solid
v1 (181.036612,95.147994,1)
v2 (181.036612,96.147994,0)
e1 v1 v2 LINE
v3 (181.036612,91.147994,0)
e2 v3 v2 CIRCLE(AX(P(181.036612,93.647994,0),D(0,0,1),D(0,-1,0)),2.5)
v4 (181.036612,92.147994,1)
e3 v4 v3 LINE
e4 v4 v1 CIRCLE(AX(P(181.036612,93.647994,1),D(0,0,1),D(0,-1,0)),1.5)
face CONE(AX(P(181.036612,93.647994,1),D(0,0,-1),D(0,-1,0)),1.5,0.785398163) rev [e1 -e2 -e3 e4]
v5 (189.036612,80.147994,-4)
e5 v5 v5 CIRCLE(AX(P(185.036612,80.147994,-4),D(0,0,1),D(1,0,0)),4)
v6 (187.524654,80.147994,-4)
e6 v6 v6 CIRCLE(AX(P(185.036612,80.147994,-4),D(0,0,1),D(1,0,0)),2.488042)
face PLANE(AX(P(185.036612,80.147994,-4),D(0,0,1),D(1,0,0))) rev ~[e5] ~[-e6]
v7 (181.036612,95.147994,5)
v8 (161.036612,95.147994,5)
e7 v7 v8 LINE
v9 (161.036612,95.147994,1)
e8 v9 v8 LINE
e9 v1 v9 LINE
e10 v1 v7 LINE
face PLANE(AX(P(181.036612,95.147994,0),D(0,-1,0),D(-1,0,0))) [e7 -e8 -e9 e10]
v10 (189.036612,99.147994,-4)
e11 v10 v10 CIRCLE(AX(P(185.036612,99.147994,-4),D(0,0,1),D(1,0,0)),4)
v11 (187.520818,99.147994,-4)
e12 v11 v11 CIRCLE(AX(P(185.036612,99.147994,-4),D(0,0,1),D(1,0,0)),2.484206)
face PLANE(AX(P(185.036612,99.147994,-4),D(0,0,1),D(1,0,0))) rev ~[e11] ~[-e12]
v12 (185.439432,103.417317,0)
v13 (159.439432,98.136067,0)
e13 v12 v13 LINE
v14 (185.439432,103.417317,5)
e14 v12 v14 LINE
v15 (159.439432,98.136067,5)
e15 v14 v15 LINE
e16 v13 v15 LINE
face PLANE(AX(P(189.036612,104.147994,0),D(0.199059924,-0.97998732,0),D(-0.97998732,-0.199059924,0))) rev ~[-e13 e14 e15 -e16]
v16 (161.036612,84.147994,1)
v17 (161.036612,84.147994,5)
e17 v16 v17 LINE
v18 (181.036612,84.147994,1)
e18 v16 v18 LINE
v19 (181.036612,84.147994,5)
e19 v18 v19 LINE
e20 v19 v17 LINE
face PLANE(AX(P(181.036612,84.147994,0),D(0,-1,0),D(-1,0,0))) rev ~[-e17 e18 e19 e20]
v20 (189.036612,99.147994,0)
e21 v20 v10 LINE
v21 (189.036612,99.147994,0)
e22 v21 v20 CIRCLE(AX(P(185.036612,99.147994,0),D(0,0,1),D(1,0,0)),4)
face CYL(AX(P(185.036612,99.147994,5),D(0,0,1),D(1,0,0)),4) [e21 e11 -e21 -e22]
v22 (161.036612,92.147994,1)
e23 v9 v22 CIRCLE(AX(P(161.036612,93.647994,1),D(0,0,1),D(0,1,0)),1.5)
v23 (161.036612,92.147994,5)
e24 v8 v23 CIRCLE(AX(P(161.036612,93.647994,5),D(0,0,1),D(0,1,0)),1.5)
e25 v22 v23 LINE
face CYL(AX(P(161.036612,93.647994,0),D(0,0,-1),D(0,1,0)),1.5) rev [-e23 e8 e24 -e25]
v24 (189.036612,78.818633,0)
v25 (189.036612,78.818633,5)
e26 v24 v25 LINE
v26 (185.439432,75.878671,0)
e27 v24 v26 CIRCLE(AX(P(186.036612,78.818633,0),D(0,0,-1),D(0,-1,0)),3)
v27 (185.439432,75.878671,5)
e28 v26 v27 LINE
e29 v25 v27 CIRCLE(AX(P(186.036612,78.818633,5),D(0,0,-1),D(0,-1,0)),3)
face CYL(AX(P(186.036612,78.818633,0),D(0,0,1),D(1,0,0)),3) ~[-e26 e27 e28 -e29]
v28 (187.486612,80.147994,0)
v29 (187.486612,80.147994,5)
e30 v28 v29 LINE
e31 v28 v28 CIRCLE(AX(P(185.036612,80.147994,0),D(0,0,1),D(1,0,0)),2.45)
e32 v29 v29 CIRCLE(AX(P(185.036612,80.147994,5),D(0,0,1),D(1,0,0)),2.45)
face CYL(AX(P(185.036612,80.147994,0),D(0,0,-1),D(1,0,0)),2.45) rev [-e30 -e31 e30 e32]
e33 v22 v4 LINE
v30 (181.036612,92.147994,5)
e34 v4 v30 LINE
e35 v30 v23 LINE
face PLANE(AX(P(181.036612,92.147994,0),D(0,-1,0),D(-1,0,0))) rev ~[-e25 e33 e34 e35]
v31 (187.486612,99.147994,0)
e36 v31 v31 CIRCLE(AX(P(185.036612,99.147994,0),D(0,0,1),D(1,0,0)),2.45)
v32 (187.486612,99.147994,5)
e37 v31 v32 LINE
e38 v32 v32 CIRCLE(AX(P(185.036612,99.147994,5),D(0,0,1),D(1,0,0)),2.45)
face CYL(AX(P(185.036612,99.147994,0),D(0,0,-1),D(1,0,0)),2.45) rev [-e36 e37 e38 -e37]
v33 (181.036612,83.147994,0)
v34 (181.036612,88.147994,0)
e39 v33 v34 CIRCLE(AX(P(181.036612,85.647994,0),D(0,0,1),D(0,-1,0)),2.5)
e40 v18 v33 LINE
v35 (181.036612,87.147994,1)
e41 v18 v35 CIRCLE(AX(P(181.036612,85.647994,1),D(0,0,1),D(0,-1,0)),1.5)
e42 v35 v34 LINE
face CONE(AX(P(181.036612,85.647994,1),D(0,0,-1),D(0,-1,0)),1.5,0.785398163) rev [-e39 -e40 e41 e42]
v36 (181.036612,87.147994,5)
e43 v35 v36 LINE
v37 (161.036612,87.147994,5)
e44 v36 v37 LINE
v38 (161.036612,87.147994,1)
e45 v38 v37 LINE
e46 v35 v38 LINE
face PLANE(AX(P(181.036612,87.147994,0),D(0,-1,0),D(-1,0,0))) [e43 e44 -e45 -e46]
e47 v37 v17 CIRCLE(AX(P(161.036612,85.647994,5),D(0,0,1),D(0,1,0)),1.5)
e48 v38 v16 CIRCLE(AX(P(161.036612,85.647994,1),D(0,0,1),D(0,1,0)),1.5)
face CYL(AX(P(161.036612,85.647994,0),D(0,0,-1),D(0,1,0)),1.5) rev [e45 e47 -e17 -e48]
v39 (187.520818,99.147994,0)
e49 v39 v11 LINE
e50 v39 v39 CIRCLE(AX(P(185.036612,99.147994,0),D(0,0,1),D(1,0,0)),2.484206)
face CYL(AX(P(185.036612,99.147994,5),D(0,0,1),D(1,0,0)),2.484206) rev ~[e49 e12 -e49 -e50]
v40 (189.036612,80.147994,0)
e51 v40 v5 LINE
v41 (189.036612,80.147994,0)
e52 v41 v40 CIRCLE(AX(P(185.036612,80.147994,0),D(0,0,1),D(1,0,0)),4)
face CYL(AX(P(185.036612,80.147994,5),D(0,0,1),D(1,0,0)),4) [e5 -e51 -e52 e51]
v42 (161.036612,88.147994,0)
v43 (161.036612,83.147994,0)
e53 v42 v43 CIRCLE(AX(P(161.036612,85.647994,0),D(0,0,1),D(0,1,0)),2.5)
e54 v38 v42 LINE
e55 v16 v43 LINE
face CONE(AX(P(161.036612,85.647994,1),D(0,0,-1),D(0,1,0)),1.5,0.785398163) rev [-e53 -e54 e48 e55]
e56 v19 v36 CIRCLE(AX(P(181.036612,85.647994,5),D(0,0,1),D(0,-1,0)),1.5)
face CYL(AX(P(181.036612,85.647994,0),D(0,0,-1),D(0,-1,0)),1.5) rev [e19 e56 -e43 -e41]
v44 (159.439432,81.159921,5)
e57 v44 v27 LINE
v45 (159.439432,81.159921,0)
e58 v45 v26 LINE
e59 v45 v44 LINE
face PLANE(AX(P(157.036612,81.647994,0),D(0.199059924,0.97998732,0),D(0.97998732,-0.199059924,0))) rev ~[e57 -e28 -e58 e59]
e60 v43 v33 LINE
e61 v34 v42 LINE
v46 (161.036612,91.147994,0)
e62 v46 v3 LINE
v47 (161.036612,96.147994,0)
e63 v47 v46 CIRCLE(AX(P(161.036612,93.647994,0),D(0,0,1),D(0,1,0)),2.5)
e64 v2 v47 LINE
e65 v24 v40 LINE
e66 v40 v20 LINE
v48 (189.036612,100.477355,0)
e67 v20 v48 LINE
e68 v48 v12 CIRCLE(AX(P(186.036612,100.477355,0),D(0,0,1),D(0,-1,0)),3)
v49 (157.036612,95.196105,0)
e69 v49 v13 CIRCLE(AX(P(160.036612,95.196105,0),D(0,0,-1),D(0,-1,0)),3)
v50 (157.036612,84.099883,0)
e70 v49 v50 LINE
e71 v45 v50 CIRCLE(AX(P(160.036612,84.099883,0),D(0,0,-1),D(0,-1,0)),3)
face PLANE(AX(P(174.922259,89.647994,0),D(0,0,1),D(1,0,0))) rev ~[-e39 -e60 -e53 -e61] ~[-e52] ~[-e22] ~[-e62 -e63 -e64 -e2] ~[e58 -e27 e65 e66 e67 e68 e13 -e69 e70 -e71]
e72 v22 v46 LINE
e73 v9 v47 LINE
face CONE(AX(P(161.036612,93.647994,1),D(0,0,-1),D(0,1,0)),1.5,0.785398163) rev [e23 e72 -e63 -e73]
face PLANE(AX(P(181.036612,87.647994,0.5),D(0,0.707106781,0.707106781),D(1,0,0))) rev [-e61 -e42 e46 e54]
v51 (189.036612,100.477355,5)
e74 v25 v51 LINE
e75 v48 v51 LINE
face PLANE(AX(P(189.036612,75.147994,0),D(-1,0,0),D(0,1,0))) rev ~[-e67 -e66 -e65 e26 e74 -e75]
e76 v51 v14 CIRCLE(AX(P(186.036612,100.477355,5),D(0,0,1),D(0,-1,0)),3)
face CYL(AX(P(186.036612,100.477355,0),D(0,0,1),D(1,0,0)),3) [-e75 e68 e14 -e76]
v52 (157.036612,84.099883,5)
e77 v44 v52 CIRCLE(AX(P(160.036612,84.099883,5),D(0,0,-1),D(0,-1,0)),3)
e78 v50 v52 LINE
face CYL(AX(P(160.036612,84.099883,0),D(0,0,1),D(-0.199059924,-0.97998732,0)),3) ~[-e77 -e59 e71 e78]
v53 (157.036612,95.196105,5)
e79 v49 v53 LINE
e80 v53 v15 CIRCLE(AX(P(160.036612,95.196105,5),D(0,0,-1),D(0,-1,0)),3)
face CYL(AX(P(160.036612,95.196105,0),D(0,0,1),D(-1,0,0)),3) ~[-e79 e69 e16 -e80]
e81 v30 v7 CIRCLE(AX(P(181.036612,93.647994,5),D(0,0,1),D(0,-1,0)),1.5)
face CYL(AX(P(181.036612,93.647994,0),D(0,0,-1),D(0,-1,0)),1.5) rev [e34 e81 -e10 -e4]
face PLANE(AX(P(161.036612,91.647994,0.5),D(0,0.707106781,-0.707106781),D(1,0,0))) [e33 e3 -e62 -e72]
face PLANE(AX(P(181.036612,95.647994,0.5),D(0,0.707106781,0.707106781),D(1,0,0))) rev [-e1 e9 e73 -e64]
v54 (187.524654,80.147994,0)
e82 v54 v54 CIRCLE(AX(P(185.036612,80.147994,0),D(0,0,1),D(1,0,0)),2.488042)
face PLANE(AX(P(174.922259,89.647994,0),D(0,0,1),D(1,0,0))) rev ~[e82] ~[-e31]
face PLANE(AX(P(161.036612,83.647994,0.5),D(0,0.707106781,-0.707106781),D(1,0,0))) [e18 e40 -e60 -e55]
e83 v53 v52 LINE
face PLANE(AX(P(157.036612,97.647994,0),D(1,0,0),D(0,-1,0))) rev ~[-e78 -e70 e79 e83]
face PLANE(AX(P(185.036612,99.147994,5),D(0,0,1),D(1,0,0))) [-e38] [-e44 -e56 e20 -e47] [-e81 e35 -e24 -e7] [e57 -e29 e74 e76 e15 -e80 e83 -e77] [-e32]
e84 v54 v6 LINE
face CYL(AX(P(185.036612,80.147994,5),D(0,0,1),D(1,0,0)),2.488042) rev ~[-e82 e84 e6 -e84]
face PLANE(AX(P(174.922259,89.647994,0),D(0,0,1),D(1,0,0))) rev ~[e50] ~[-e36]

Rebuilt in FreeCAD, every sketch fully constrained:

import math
import FreeCAD as App
import Part
import Sketcher
from FreeCAD import Vector


def edges_at(feature, points):
    """Names of the edges that pass closest to the given points."""
    edges = feature.Shape.Edges
    near = lambda p: min(range(len(edges)), key=lambda i: edges[i].distToShape(Part.Vertex(*p))[0])
    return sorted({f"Edge{near(p) + 1}" for p in points})


def add_polygon(sketch, points):
    """Adds a closed chain of lines whose ends are joined by coincident constraints."""
    first, n = sketch.GeometryCount, len(points)
    for a, b in zip(points, points[1:] + points[:1]):
        sketch.addGeometry(Part.LineSegment(App.Vector(*a, 0), App.Vector(*b, 0)), False)
    for i in range(n):
        sketch.addConstraint(Sketcher.Constraint("Coincident", first + i, 2, first + (i + 1) % n, 1))

doc = App.newDocument("Part")
body = doc.addObject("PartDesign::Body", "Body")

# Sketch on XY plane
sketch1 = body.newObject("Sketcher::SketchObject", "Sketch")
sketch1.AttachmentSupport = (doc.getObject("XY_Plane"), [""])
sketch1.MapMode = "FlatFace"
add_polygon(sketch1, [(189, 104.1), (157, 97.6), (157, 81.6), (189, 75.1)])  # lines 0-3
sketch1.addGeometry(Part.ArcOfCircle(Part.Circle(Vector(181, 85.6, 0), Vector(0, 0, 1), 1.5), math.radians(-90), math.radians(90)), False)  # 4
sketch1.addGeometry(Part.LineSegment(Vector(181, 84.1, 0), Vector(161, 84.1, 0)), False)  # 5
sketch1.addGeometry(Part.ArcOfCircle(Part.Circle(Vector(161, 85.6, 0), Vector(0, 0, 1), 1.5), math.radians(90), math.radians(270)), False)  # 6
sketch1.addGeometry(Part.LineSegment(Vector(161, 87.1, 0), Vector(181, 87.1, 0)), False)  # 7
sketch1.addGeometry(Part.Circle(Vector(185, 80.1, 0), Vector(0, 0, 1), 2.5), False)  # 8
sketch1.addGeometry(Part.ArcOfCircle(Part.Circle(Vector(181, 93.6, 0), Vector(0, 0, 1), 1.5), math.radians(-90), math.radians(90)), False)  # 9
sketch1.addGeometry(Part.LineSegment(Vector(181, 92.1, 0), Vector(161, 92.1, 0)), False)  # 10
sketch1.addGeometry(Part.ArcOfCircle(Part.Circle(Vector(161, 93.6, 0), Vector(0, 0, 1), 1.5), math.radians(90), math.radians(270)), False)  # 11
sketch1.addGeometry(Part.LineSegment(Vector(161, 95.1, 0), Vector(181, 95.1, 0)), False)  # 12
sketch1.addGeometry(Part.Circle(Vector(185, 99.1, 0), Vector(0, 0, 1), 2.5), False)  # 13
sketch1.addConstraint([
    Sketcher.Constraint("Tangent", 4, 1, 5, 1),
    Sketcher.Constraint("Tangent", 5, 2, 6, 2),
    Sketcher.Constraint("Tangent", 6, 1, 7, 1),
    Sketcher.Constraint("Tangent", 7, 2, 4, 2),
    Sketcher.Constraint("Tangent", 9, 1, 10, 1),
    Sketcher.Constraint("Tangent", 10, 2, 11, 2),
    Sketcher.Constraint("Tangent", 11, 1, 12, 1),
    Sketcher.Constraint("Tangent", 12, 2, 9, 2),
    Sketcher.Constraint("Vertical", 1),
    Sketcher.Constraint("Vertical", 3),
    Sketcher.Constraint("Horizontal", 5),
    Sketcher.Constraint("Horizontal", 7),
    Sketcher.Constraint("Horizontal", 10),
    Sketcher.Constraint("Horizontal", 12),
    Sketcher.Constraint("Equal", 6, 9),
    Sketcher.Constraint("Equal", 8, 13),
    Sketcher.Constraint("Vertical", 4, 3, 9, 3),
    Sketcher.Constraint("Vertical", 6, 3, 11, 3),
    Sketcher.Constraint("Vertical", 8, 3, 13, 3),
    Sketcher.Constraint("Equal", 0, 2),
    Sketcher.Constraint("Diameter", 8, 4.9),
    Sketcher.Constraint("Radius", 4, 1.5),
    Sketcher.Constraint("DistanceX", 5, 2, 5, 1, 20.0),
    Sketcher.Constraint("DistanceY", 1, 2, 1, 1, 16.0),
    Sketcher.Constraint("DistanceY", 3, 1, 3, 2, 29.0),
    Sketcher.Constraint("DistanceX", 4, 3, 8, 3, 4.0),
    Sketcher.Constraint("DistanceY", 4, 3, 9, 3, 8.0),
    Sketcher.Constraint("DistanceY", 8, 3, 13, 3, 19.0),
    Sketcher.Constraint("DistanceX", 0, 2, 11, 3, 4.0),
    Sketcher.Constraint("DistanceY", 11, 3, 0, 2, 4.0),
    Sketcher.Constraint("DistanceX", 8, 3, 2, 2, 4.0),
    Sketcher.Constraint("DistanceY", 2, 2, 8, 3, 5.0),
    Sketcher.Constraint("DistanceX", -1, 1, 4, 3, 181.036612),
    Sketcher.Constraint("DistanceY", -1, 1, 4, 3, 85.647994),
])
pad1 = body.newObject("PartDesign::Pad", "Pad")
pad1.Profile = sketch1
pad1.Length = 5

# Sketch on XY plane
sketch2 = body.newObject("Sketcher::SketchObject", "Sketch001")
sketch2.AttachmentSupport = (doc.getObject("XY_Plane"), [""])
sketch2.MapMode = "FlatFace"
sketch2.AttachmentOffset = App.Placement(Vector(0, 0, 5), App.Rotation())
sketch2.addGeometry([
    Part.Circle(Vector(185, 99.1, 0), Vector(0, 0, 1), 4),
    Part.Circle(Vector(185, 99.1, 0), Vector(0, 0, 1), 2.5),
    Part.Circle(Vector(185, 80.1, 0), Vector(0, 0, 1), 4),
    Part.Circle(Vector(185, 80.1, 0), Vector(0, 0, 1), 2.5),
], False)
sketch2.addConstraint([
    Sketcher.Constraint("Coincident", 1, 3, 0, 3),
    Sketcher.Constraint("Coincident", 3, 3, 2, 3),
    Sketcher.Constraint("Equal", 0, 2),
    Sketcher.Constraint("Vertical", 1, 3, 2, 3),
    Sketcher.Constraint("Diameter", 0, 8.0),
    Sketcher.Constraint("DistanceY", 2, 3, 0, 3, 19.0),
    Sketcher.Constraint("Diameter", 1, 4.968412),
    Sketcher.Constraint("Diameter", 3, 4.976084),
    Sketcher.Constraint("DistanceX", -1, 1, 0, 3, 185.036612),
    Sketcher.Constraint("DistanceY", -1, 1, 0, 3, 99.147994),
])
pad2 = body.newObject("PartDesign::Pad", "Pad001")
pad2.Profile = sketch2
pad2.Length = 9
pad2.Reversed = True
doc.recompute()

fillet = body.newObject("PartDesign::Fillet", "Fillet")
fillet.Base = (pad2, edges_at(pad2, [
    (189.037, 104.148, 2.5),
    (189.037, 75.148, 2.5),
    (157.037, 97.648, 2.5),
    (157.037, 81.648, 2.5),
]))
fillet.Radius = 3
doc.recompute()

chamfer = body.newObject("PartDesign::Chamfer", "Chamfer")
chamfer.Base = (fillet, edges_at(fillet, [
    (171.037, 95.148, 0),
    (171.037, 92.148, 0),
    (171.037, 87.148, 0),
    (171.037, 84.148, 0),
]))
chamfer.Size = 1

doc.recompute()
